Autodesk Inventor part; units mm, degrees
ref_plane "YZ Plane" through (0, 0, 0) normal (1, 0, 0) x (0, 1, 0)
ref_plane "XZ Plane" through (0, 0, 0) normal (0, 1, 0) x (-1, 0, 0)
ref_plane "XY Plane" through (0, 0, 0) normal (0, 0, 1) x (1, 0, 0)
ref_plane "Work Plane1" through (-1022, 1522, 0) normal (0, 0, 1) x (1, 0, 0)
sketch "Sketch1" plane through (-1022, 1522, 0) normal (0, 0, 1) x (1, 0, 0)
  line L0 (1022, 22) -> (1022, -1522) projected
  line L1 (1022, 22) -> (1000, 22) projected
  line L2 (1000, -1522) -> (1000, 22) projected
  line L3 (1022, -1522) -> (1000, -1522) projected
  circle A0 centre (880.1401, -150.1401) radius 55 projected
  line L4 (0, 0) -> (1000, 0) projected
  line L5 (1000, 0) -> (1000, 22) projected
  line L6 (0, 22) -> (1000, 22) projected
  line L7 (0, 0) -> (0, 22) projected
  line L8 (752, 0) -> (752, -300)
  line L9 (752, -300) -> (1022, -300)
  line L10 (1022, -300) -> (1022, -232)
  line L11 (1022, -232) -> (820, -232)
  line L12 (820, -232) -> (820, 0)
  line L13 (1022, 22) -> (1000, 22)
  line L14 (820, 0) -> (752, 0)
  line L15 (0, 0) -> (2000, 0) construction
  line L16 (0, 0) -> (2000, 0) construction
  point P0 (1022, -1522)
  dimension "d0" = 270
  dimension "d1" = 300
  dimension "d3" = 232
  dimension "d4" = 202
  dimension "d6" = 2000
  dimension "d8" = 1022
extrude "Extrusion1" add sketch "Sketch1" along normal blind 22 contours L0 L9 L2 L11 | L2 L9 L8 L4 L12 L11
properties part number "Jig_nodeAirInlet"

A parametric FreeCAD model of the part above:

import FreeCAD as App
import Part
import Sketcher
from FreeCAD import Vector

doc = App.newDocument("Part")
body = doc.addObject("PartDesign::Body", "Body")

# Sketch on XY plane
sketch1 = body.newObject("Sketcher::SketchObject", "Sketch")
sketch1.AttachmentSupport = (doc.getObject("XY_Plane"), [""])
sketch1.MapMode = "FlatFace"
sketch1.addGeometry([
    Part.LineSegment(Vector(0, 1222, 0), Vector(0, 1290, 0)),  # 0
    Part.LineSegment(Vector(0, 1290, 0), Vector(-202, 1290, 0)),  # 1
    Part.LineSegment(Vector(-202, 1290, 0), Vector(-202, 1522, 0)),  # 2
    Part.LineSegment(Vector(-202, 1522, 0), Vector(-270, 1522, 0)),  # 3
    Part.LineSegment(Vector(-270, 1522, 0), Vector(-270, 1222, 0)),  # 4
    Part.LineSegment(Vector(-270, 1222, 0), Vector(0, 1222, 0)),  # 5
], False)
sketch1.addConstraint([
    Sketcher.Constraint("Coincident", 0, 2, 1, 1),
    Sketcher.Constraint("Coincident", 1, 2, 2, 1),
    Sketcher.Constraint("Coincident", 2, 2, 3, 1),
    Sketcher.Constraint("Coincident", 3, 2, 4, 1),
    Sketcher.Constraint("Coincident", 4, 2, 5, 1),
    Sketcher.Constraint("Coincident", 5, 2, 0, 1),
    Sketcher.Constraint("Vertical", 0),
    Sketcher.Constraint("Horizontal", 1),
    Sketcher.Constraint("Vertical", 2),
    Sketcher.Constraint("Horizontal", 3),
    Sketcher.Constraint("Vertical", 4),
    Sketcher.Constraint("Horizontal", 5),
    Sketcher.Constraint("PointOnObject", 0, 2, -2),
    Sketcher.Constraint("Equal", 3, 0),
    Sketcher.Constraint("DistanceX", 1, 2, 1, 1, 202.0),
    Sketcher.Constraint("DistanceX", 5, 1, 5, 2, 270.0),
    Sketcher.Constraint("DistanceY", 2, 1, 2, 2, 232.0),
    Sketcher.Constraint("DistanceY", -1, 1, 0, 2, 1290.0),
])
pad1 = body.newObject("PartDesign::Pad", "Pad")
pad1.Profile = sketch1
pad1.Length = 22

doc.recompute()
